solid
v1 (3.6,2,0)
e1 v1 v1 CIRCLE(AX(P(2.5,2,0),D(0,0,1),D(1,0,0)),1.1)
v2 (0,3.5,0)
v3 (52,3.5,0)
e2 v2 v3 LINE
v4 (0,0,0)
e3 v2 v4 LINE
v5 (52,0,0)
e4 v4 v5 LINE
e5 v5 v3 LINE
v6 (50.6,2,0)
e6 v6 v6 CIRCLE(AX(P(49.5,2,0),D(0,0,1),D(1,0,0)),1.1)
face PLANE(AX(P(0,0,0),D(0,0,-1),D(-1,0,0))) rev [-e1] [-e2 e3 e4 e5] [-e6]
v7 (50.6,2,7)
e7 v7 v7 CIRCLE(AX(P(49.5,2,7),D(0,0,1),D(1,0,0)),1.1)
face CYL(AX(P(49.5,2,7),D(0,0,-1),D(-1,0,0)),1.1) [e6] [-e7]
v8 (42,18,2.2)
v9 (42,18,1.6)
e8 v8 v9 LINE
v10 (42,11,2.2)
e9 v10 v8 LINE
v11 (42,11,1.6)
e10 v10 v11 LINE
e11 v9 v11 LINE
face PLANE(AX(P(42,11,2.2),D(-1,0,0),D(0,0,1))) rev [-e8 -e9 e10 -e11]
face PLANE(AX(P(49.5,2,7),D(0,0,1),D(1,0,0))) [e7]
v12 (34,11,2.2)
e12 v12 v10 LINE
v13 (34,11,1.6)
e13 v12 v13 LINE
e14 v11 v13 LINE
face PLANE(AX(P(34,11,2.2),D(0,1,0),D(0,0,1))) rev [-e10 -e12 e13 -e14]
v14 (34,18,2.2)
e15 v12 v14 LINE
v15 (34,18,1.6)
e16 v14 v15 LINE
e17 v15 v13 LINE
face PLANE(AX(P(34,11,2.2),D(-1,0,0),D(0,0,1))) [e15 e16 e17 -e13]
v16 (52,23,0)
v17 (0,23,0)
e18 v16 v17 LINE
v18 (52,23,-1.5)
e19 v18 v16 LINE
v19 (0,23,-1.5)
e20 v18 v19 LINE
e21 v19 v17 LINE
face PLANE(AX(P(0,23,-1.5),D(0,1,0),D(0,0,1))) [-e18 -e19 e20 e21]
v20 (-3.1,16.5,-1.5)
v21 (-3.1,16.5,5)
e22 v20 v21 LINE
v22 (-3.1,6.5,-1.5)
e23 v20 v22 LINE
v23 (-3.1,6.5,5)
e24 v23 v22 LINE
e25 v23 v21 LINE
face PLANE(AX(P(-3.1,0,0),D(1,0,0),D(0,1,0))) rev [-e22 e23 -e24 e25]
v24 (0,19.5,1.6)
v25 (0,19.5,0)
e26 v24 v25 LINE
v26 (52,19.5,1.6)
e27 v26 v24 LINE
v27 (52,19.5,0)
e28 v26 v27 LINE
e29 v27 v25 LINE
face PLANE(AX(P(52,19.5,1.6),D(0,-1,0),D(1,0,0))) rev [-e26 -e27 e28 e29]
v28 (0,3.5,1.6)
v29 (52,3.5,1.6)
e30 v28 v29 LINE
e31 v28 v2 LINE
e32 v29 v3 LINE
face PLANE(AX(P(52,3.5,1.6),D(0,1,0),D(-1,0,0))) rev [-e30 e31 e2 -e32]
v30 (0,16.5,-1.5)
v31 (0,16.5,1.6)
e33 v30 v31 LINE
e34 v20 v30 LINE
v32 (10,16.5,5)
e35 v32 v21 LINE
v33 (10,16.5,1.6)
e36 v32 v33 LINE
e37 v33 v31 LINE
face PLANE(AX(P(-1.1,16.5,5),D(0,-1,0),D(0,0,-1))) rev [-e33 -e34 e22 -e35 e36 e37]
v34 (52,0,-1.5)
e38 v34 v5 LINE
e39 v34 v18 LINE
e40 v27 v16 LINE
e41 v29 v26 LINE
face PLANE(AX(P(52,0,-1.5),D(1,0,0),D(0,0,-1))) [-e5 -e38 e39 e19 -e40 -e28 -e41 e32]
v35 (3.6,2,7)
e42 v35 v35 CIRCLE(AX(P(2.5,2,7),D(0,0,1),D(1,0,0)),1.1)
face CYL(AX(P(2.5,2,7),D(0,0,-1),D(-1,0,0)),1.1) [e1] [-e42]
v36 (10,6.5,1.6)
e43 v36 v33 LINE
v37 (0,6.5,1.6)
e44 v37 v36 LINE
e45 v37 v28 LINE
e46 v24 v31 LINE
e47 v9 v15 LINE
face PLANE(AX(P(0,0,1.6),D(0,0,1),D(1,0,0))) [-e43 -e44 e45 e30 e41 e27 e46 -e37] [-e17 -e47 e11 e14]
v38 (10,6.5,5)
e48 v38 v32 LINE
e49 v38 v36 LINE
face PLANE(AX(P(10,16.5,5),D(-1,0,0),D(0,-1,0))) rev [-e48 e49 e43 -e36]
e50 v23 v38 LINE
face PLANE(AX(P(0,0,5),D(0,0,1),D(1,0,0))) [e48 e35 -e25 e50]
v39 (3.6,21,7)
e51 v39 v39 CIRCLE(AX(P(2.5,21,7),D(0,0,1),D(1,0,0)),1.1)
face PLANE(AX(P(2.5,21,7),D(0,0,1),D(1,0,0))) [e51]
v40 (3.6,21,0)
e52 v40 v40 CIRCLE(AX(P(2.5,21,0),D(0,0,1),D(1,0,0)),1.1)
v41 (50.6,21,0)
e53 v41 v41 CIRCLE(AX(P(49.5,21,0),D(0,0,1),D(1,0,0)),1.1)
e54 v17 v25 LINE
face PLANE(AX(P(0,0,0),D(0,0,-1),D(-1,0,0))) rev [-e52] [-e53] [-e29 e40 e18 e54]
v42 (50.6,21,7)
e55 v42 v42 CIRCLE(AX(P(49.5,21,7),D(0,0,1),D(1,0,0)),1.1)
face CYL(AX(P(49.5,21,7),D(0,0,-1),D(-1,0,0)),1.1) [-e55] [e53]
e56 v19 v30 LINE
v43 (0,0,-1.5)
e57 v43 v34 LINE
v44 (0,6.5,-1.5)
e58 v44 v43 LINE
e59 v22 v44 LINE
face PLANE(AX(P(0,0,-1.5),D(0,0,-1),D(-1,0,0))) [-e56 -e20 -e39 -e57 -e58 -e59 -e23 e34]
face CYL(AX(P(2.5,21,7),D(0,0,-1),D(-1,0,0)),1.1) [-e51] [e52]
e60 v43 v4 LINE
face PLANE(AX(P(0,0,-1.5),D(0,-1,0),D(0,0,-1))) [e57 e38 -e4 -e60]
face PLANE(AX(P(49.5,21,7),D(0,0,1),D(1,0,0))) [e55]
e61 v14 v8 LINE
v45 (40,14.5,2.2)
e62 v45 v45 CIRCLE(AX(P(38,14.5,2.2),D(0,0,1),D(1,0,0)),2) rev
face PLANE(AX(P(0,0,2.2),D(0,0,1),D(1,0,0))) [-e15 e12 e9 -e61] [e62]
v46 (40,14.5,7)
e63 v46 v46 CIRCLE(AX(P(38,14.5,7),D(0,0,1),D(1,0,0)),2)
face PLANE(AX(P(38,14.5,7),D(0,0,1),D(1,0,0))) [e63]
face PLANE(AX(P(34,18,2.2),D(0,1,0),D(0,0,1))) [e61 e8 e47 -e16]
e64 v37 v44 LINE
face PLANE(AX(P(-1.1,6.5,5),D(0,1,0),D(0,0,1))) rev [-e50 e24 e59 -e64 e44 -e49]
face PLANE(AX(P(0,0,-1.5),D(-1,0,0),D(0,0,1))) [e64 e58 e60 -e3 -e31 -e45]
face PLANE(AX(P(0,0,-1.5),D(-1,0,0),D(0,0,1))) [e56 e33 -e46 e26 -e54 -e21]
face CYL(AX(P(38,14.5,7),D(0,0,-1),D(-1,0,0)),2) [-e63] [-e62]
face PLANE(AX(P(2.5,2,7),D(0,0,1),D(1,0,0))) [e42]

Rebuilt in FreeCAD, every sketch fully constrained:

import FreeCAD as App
import Part
import Sketcher

doc = App.newDocument("Part")
body = doc.addObject("PartDesign::Body", "Body")

sketch1 = doc.addObject("Sketcher::SketchObject", "Sketch")
body.addObject(sketch1)
sketch1.AttachmentSupport = (doc.XY_Plane, [""])
sketch1.MapMode = "FlatFace"
sketch1.addGeometry(Part.LineSegment(App.Vector(0, 23, 0), App.Vector(0, 0, 0)), False)
sketch1.addGeometry(Part.LineSegment(App.Vector(0, 0, 0), App.Vector(52, 0, 0)), False)
sketch1.addGeometry(Part.LineSegment(App.Vector(52, 0, 0), App.Vector(52, 23, 0)), False)
sketch1.addGeometry(Part.LineSegment(App.Vector(52, 23, 0), App.Vector(0, 23, 0)), False)
sketch1.addGeometry(Part.Circle(App.Vector(2.5, 2, 0), App.Vector(0, 0, 1), 1.1), False)
sketch1.addGeometry(Part.Circle(App.Vector(49.5, 2, 0), App.Vector(0, 0, 1), 1.1), False)
sketch1.addGeometry(Part.Circle(App.Vector(2.5, 21, 0), App.Vector(0, 0, 1), 1.1), False)
sketch1.addGeometry(Part.Circle(App.Vector(49.5, 21, 0), App.Vector(0, 0, 1), 1.1), False)
sketch1.addConstraint(Sketcher.Constraint("Coincident", 0, 2, 1, 1))
sketch1.addConstraint(Sketcher.Constraint("Coincident", 1, 2, 2, 1))
sketch1.addConstraint(Sketcher.Constraint("Coincident", 2, 2, 3, 1))
sketch1.addConstraint(Sketcher.Constraint("Coincident", 3, 2, 0, 1))
sketch1.addConstraint(Sketcher.Constraint("Vertical", 0))
sketch1.addConstraint(Sketcher.Constraint("Horizontal", 1))
sketch1.addConstraint(Sketcher.Constraint("Vertical", 2))
sketch1.addConstraint(Sketcher.Constraint("Horizontal", 3))
sketch1.addConstraint(Sketcher.Constraint("Coincident", 0, 2, -1, 1))
sketch1.addConstraint(Sketcher.Constraint("Equal", 4, 5))
sketch1.addConstraint(Sketcher.Constraint("Equal", 5, 6))
sketch1.addConstraint(Sketcher.Constraint("Equal", 6, 7))
sketch1.addConstraint(Sketcher.Constraint("Horizontal", 4, 3, 5, 3))
sketch1.addConstraint(Sketcher.Constraint("Horizontal", 6, 3, 7, 3))
sketch1.addConstraint(Sketcher.Constraint("Vertical", 4, 3, 6, 3))
sketch1.addConstraint(Sketcher.Constraint("Vertical", 5, 3, 7, 3))
sketch1.addConstraint(Sketcher.Constraint("Diameter", 4, 2.2))
sketch1.addConstraint(Sketcher.Constraint("DistanceX", 1, 1, 1, 2, 52.0))
sketch1.addConstraint(Sketcher.Constraint("DistanceY", 0, 2, 0, 1, 23.0))
sketch1.addConstraint(Sketcher.Constraint("DistanceY", -1, 1, 4, 3, 2.0))
sketch1.addConstraint(Sketcher.Constraint("DistanceY", -1, 1, 6, 3, 21.0))
sketch1.addConstraint(Sketcher.Constraint("DistanceX", 4, 3, 5, 3, 47.0))
sketch1.addConstraint(Sketcher.Constraint("DistanceX", -1, 1, 4, 3, 2.5))
pad1 = doc.addObject("PartDesign::Pad", "Pad")
body.addObject(pad1)
pad1.Profile = sketch1
pad1.Length = 1.5
pad1.Reversed = True

sketch2 = doc.addObject("Sketcher::SketchObject", "Sketch001")
body.addObject(sketch2)
sketch2.AttachmentSupport = (doc.XY_Plane, [""])
sketch2.MapMode = "FlatFace"
sketch2.addGeometry(Part.LineSegment(App.Vector(-1, 16, 0), App.Vector(-1, 6, 0)), False)
sketch2.addGeometry(Part.LineSegment(App.Vector(-1, 6, 0), App.Vector(10, 6, 0)), False)
sketch2.addGeometry(Part.LineSegment(App.Vector(10, 6, 0), App.Vector(10, 16, 0)), False)
sketch2.addGeometry(Part.LineSegment(App.Vector(10, 16, 0), App.Vector(-1, 16, 0)), False)
sketch2.addConstraint(Sketcher.Constraint("Coincident", 0, 2, 1, 1))
sketch2.addConstraint(Sketcher.Constraint("Coincident", 1, 2, 2, 1))
sketch2.addConstraint(Sketcher.Constraint("Coincident", 2, 2, 3, 1))
sketch2.addConstraint(Sketcher.Constraint("Coincident", 3, 2, 0, 1))
sketch2.addConstraint(Sketcher.Constraint("Vertical", 0))
sketch2.addConstraint(Sketcher.Constraint("Horizontal", 1))
sketch2.addConstraint(Sketcher.Constraint("Vertical", 2))
sketch2.addConstraint(Sketcher.Constraint("Horizontal", 3))
sketch2.addConstraint(Sketcher.Constraint("DistanceY", 0, 2, 0, 1, 10.0))
sketch2.addConstraint(Sketcher.Constraint("DistanceX", 1, 1, 1, 2, 11.1))
sketch2.addConstraint(Sketcher.Constraint("DistanceX", -1, 1, 1, 2, 10.0))
sketch2.addConstraint(Sketcher.Constraint("DistanceY", -1, 1, 0, 2, 6.5))
pad2 = doc.addObject("PartDesign::Pad", "Pad001")
body.addObject(pad2)
pad2.Profile = sketch2
pad2.Length = 5

sketch3 = doc.addObject("Sketcher::SketchObject", "Sketch002")
body.addObject(sketch3)
sketch3.AttachmentSupport = (doc.XY_Plane, [""])
sketch3.MapMode = "FlatFace"
sketch3.addGeometry(Part.LineSegment(App.Vector(0, 20, 0), App.Vector(0, 4, 0)), False)
sketch3.addGeometry(Part.LineSegment(App.Vector(0, 4, 0), App.Vector(52, 4, 0)), False)
sketch3.addGeometry(Part.LineSegment(App.Vector(52, 4, 0), App.Vector(52, 20, 0)), False)
sketch3.addGeometry(Part.LineSegment(App.Vector(52, 20, 0), App.Vector(0, 20, 0)), False)
sketch3.addConstraint(Sketcher.Constraint("Coincident", 0, 2, 1, 1))
sketch3.addConstraint(Sketcher.Constraint("Coincident", 1, 2, 2, 1))
sketch3.addConstraint(Sketcher.Constraint("Coincident", 2, 2, 3, 1))
sketch3.addConstraint(Sketcher.Constraint("Coincident", 3, 2, 0, 1))
sketch3.addConstraint(Sketcher.Constraint("Vertical", 0))
sketch3.addConstraint(Sketcher.Constraint("Horizontal", 1))
sketch3.addConstraint(Sketcher.Constraint("Vertical", 2))
sketch3.addConstraint(Sketcher.Constraint("Horizontal", 3))
sketch3.addConstraint(Sketcher.Constraint("PointOnObject", 0, 2, -2))
sketch3.addConstraint(Sketcher.Constraint("DistanceX", 1, 1, 1, 2, 52.0))
sketch3.addConstraint(Sketcher.Constraint("DistanceY", 0, 2, 0, 1, 16.0))
sketch3.addConstraint(Sketcher.Constraint("DistanceY", -1, 1, 0, 2, 3.5))
pad3 = doc.addObject("PartDesign::Pad", "Pad002")
body.addObject(pad3)
pad3.Profile = sketch3
pad3.Length = 1.6

sketch4 = doc.addObject("Sketcher::SketchObject", "Sketch003")
body.addObject(sketch4)
sketch4.AttachmentSupport = (doc.XY_Plane, [""])
sketch4.MapMode = "FlatFace"
sketch4.addGeometry(Part.LineSegment(App.Vector(34, 18, 0), App.Vector(34, 11, 0)), False)
sketch4.addGeometry(Part.LineSegment(App.Vector(34, 11, 0), App.Vector(42, 11, 0)), False)
sketch4.addGeometry(Part.LineSegment(App.Vector(42, 11, 0), App.Vector(42, 18, 0)), False)
sketch4.addGeometry(Part.LineSegment(App.Vector(42, 18, 0), App.Vector(34, 18, 0)), False)
sketch4.addConstraint(Sketcher.Constraint("Coincident", 0, 2, 1, 1))
sketch4.addConstraint(Sketcher.Constraint("Coincident", 1, 2, 2, 1))
sketch4.addConstraint(Sketcher.Constraint("Coincident", 2, 2, 3, 1))
sketch4.addConstraint(Sketcher.Constraint("Coincident", 3, 2, 0, 1))
sketch4.addConstraint(Sketcher.Constraint("Vertical", 0))
sketch4.addConstraint(Sketcher.Constraint("Horizontal", 1))
sketch4.addConstraint(Sketcher.Constraint("Vertical", 2))
sketch4.addConstraint(Sketcher.Constraint("Horizontal", 3))
sketch4.addConstraint(Sketcher.Constraint("DistanceX", 1, 1, 1, 2, 8.0))
sketch4.addConstraint(Sketcher.Constraint("DistanceY", 0, 2, 0, 1, 7.0))
sketch4.addConstraint(Sketcher.Constraint("DistanceX", -1, 1, 0, 2, 34.0))
sketch4.addConstraint(Sketcher.Constraint("DistanceY", -1, 1, 0, 2, 11.0))
pad4 = doc.addObject("PartDesign::Pad", "Pad003")
body.addObject(pad4)
pad4.Profile = sketch4
pad4.Length = 2.2

sketch5 = doc.addObject("Sketcher::SketchObject", "Sketch004")
body.addObject(sketch5)
sketch5.AttachmentSupport = (doc.XY_Plane, [""])
sketch5.MapMode = "FlatFace"
sketch5.addGeometry(Part.Circle(App.Vector(38, 14.5, 0), App.Vector(0, 0, 1), 2), False)
sketch5.addConstraint(Sketcher.Constraint("Diameter", 0, 4.0))
sketch5.addConstraint(Sketcher.Constraint("DistanceX", -1, 1, 0, 3, 38.0))
sketch5.addConstraint(Sketcher.Constraint("DistanceY", -1, 1, 0, 3, 14.5))
pad5 = doc.addObject("PartDesign::Pad", "Pad004")
body.addObject(pad5)
pad5.Profile = sketch5
pad5.Length = 7

sketch6 = doc.addObject("Sketcher::SketchObject", "Sketch005")
body.addObject(sketch6)
sketch6.AttachmentSupport = (doc.YZ_Plane, [""])
sketch6.MapMode = "FlatFace"
sketch6.AttachmentOffset = App.Placement(App.Vector(0, 0, -1.1), App.Rotation())
sketch6.addGeometry(Part.LineSegment(App.Vector(16.2, 0.3, 0), App.Vector(6.8, 0.3, 0)), False)
sketch6.addGeometry(Part.LineSegment(App.Vector(6.8, 0.3, 0), App.Vector(6.8, 4.7, 0)), False)
sketch6.addGeometry(Part.LineSegment(App.Vector(6.8, 4.7, 0), App.Vector(16.2, 4.7, 0)), False)
sketch6.addGeometry(Part.LineSegment(App.Vector(16.2, 4.7, 0), App.Vector(16.2, 0.3, 0)), False)
sketch6.addConstraint(Sketcher.Constraint("Coincident", 0, 2, 1, 1))
sketch6.addConstraint(Sketcher.Constraint("Coincident", 1, 2, 2, 1))
sketch6.addConstraint(Sketcher.Constraint("Coincident", 2, 2, 3, 1))
sketch6.addConstraint(Sketcher.Constraint("Coincident", 3, 2, 0, 1))
sketch6.addConstraint(Sketcher.Constraint("Horizontal", 0))
sketch6.addConstraint(Sketcher.Constraint("Vertical", 1))
sketch6.addConstraint(Sketcher.Constraint("Horizontal", 2))
sketch6.addConstraint(Sketcher.Constraint("Vertical", 3))
sketch6.addConstraint(Sketcher.Constraint("DistanceX", 0, 2, 0, 1, 9.4))
sketch6.addConstraint(Sketcher.Constraint("DistanceY", 1, 1, 1, 2, 4.4))
sketch6.addConstraint(Sketcher.Constraint("DistanceX", -1, 1, 0, 2, 6.8))
sketch6.addConstraint(Sketcher.Constraint("DistanceY", -1, 1, 0, 2, 0.3))
pad6 = doc.addObject("PartDesign::Pad", "Pad005")
body.addObject(pad6)
pad6.Profile = sketch6
pad6.Length = 2
pad6.Reversed = True

sketch7 = doc.addObject("Sketcher::SketchObject", "Sketch006")
body.addObject(sketch7)
sketch7.AttachmentSupport = (doc.YZ_Plane, [""])
sketch7.MapMode = "FlatFace"
sketch7.addGeometry(Part.LineSegment(App.Vector(6, 5, 0), App.Vector(16, 5, 0)), False)
sketch7.addGeometry(Part.LineSegment(App.Vector(16, 5, 0), App.Vector(16, -2, 0)), False)
sketch7.addGeometry(Part.LineSegment(App.Vector(16, -2, 0), App.Vector(6, -2, 0)), False)
sketch7.addGeometry(Part.LineSegment(App.Vector(6, -2, 0), App.Vector(6, 5, 0)), False)
sketch7.addConstraint(Sketcher.Constraint("Coincident", 0, 2, 1, 1))
sketch7.addConstraint(Sketcher.Constraint("Coincident", 1, 2, 2, 1))
sketch7.addConstraint(Sketcher.Constraint("Coincident", 2, 2, 3, 1))
sketch7.addConstraint(Sketcher.Constraint("Coincident", 3, 2, 0, 1))
sketch7.addConstraint(Sketcher.Constraint("Horizontal", 0))
sketch7.addConstraint(Sketcher.Constraint("Vertical", 1))
sketch7.addConstraint(Sketcher.Constraint("Horizontal", 2))
sketch7.addConstraint(Sketcher.Constraint("Vertical", 3))
sketch7.addConstraint(Sketcher.Constraint("DistanceX", 0, 1, 0, 2, 10.0))
sketch7.addConstraint(Sketcher.Constraint("DistanceY", 1, 2, 1, 1, 6.5))
sketch7.addConstraint(Sketcher.Constraint("DistanceY", -1, 1, 0, 2, 5.0))
sketch7.addConstraint(Sketcher.Constraint("DistanceX", -1, 1, 0, 2, 16.5))
pad7 = doc.addObject("PartDesign::Pad", "Pad006")
body.addObject(pad7)
pad7.Profile = sketch7
pad7.Length = 3.1
pad7.Reversed = True

sketch8 = doc.addObject("Sketcher::SketchObject", "Sketch007")
body.addObject(sketch8)
sketch8.AttachmentSupport = (doc.XY_Plane, [""])
sketch8.MapMode = "FlatFace"
sketch8.AttachmentOffset = App.Placement(App.Vector(0, 0, -1.5), App.Rotation())
sketch8.addGeometry(Part.Circle(App.Vector(49.5, 2, 0), App.Vector(0, 0, 1), 1.1), False)
sketch8.addGeometry(Part.Circle(App.Vector(2.5, 2, 0), App.Vector(0, 0, 1), 1.1), False)
sketch8.addGeometry(Part.Circle(App.Vector(2.5, 21, 0), App.Vector(0, 0, 1), 1.1), False)
sketch8.addGeometry(Part.Circle(App.Vector(49.5, 21, 0), App.Vector(0, 0, 1), 1.1), False)
sketch8.addConstraint(Sketcher.Constraint("Equal", 0, 1))
sketch8.addConstraint(Sketcher.Constraint("Equal", 1, 2))
sketch8.addConstraint(Sketcher.Constraint("Equal", 2, 3))
sketch8.addConstraint(Sketcher.Constraint("Horizontal", 0, 3, 1, 3))
sketch8.addConstraint(Sketcher.Constraint("Horizontal", 2, 3, 3, 3))
sketch8.addConstraint(Sketcher.Constraint("Vertical", 1, 3, 2, 3))
sketch8.addConstraint(Sketcher.Constraint("Vertical", 0, 3, 3, 3))
sketch8.addConstraint(Sketcher.Constraint("Diameter", 0, 2.2))
sketch8.addConstraint(Sketcher.Constraint("DistanceY", -1, 1, 0, 3, 2.0))
sketch8.addConstraint(Sketcher.Constraint("DistanceY", -1, 1, 2, 3, 21.0))
sketch8.addConstraint(Sketcher.Constraint("DistanceX", 1, 3, 0, 3, 47.0))
sketch8.addConstraint(Sketcher.Constraint("DistanceX", -1, 1, 0, 3, 49.5))
pad8 = doc.addObject("PartDesign::Pad", "Pad007")
body.addObject(pad8)
pad8.Profile = sketch8
pad8.Length = 8.5

doc.recompute()
